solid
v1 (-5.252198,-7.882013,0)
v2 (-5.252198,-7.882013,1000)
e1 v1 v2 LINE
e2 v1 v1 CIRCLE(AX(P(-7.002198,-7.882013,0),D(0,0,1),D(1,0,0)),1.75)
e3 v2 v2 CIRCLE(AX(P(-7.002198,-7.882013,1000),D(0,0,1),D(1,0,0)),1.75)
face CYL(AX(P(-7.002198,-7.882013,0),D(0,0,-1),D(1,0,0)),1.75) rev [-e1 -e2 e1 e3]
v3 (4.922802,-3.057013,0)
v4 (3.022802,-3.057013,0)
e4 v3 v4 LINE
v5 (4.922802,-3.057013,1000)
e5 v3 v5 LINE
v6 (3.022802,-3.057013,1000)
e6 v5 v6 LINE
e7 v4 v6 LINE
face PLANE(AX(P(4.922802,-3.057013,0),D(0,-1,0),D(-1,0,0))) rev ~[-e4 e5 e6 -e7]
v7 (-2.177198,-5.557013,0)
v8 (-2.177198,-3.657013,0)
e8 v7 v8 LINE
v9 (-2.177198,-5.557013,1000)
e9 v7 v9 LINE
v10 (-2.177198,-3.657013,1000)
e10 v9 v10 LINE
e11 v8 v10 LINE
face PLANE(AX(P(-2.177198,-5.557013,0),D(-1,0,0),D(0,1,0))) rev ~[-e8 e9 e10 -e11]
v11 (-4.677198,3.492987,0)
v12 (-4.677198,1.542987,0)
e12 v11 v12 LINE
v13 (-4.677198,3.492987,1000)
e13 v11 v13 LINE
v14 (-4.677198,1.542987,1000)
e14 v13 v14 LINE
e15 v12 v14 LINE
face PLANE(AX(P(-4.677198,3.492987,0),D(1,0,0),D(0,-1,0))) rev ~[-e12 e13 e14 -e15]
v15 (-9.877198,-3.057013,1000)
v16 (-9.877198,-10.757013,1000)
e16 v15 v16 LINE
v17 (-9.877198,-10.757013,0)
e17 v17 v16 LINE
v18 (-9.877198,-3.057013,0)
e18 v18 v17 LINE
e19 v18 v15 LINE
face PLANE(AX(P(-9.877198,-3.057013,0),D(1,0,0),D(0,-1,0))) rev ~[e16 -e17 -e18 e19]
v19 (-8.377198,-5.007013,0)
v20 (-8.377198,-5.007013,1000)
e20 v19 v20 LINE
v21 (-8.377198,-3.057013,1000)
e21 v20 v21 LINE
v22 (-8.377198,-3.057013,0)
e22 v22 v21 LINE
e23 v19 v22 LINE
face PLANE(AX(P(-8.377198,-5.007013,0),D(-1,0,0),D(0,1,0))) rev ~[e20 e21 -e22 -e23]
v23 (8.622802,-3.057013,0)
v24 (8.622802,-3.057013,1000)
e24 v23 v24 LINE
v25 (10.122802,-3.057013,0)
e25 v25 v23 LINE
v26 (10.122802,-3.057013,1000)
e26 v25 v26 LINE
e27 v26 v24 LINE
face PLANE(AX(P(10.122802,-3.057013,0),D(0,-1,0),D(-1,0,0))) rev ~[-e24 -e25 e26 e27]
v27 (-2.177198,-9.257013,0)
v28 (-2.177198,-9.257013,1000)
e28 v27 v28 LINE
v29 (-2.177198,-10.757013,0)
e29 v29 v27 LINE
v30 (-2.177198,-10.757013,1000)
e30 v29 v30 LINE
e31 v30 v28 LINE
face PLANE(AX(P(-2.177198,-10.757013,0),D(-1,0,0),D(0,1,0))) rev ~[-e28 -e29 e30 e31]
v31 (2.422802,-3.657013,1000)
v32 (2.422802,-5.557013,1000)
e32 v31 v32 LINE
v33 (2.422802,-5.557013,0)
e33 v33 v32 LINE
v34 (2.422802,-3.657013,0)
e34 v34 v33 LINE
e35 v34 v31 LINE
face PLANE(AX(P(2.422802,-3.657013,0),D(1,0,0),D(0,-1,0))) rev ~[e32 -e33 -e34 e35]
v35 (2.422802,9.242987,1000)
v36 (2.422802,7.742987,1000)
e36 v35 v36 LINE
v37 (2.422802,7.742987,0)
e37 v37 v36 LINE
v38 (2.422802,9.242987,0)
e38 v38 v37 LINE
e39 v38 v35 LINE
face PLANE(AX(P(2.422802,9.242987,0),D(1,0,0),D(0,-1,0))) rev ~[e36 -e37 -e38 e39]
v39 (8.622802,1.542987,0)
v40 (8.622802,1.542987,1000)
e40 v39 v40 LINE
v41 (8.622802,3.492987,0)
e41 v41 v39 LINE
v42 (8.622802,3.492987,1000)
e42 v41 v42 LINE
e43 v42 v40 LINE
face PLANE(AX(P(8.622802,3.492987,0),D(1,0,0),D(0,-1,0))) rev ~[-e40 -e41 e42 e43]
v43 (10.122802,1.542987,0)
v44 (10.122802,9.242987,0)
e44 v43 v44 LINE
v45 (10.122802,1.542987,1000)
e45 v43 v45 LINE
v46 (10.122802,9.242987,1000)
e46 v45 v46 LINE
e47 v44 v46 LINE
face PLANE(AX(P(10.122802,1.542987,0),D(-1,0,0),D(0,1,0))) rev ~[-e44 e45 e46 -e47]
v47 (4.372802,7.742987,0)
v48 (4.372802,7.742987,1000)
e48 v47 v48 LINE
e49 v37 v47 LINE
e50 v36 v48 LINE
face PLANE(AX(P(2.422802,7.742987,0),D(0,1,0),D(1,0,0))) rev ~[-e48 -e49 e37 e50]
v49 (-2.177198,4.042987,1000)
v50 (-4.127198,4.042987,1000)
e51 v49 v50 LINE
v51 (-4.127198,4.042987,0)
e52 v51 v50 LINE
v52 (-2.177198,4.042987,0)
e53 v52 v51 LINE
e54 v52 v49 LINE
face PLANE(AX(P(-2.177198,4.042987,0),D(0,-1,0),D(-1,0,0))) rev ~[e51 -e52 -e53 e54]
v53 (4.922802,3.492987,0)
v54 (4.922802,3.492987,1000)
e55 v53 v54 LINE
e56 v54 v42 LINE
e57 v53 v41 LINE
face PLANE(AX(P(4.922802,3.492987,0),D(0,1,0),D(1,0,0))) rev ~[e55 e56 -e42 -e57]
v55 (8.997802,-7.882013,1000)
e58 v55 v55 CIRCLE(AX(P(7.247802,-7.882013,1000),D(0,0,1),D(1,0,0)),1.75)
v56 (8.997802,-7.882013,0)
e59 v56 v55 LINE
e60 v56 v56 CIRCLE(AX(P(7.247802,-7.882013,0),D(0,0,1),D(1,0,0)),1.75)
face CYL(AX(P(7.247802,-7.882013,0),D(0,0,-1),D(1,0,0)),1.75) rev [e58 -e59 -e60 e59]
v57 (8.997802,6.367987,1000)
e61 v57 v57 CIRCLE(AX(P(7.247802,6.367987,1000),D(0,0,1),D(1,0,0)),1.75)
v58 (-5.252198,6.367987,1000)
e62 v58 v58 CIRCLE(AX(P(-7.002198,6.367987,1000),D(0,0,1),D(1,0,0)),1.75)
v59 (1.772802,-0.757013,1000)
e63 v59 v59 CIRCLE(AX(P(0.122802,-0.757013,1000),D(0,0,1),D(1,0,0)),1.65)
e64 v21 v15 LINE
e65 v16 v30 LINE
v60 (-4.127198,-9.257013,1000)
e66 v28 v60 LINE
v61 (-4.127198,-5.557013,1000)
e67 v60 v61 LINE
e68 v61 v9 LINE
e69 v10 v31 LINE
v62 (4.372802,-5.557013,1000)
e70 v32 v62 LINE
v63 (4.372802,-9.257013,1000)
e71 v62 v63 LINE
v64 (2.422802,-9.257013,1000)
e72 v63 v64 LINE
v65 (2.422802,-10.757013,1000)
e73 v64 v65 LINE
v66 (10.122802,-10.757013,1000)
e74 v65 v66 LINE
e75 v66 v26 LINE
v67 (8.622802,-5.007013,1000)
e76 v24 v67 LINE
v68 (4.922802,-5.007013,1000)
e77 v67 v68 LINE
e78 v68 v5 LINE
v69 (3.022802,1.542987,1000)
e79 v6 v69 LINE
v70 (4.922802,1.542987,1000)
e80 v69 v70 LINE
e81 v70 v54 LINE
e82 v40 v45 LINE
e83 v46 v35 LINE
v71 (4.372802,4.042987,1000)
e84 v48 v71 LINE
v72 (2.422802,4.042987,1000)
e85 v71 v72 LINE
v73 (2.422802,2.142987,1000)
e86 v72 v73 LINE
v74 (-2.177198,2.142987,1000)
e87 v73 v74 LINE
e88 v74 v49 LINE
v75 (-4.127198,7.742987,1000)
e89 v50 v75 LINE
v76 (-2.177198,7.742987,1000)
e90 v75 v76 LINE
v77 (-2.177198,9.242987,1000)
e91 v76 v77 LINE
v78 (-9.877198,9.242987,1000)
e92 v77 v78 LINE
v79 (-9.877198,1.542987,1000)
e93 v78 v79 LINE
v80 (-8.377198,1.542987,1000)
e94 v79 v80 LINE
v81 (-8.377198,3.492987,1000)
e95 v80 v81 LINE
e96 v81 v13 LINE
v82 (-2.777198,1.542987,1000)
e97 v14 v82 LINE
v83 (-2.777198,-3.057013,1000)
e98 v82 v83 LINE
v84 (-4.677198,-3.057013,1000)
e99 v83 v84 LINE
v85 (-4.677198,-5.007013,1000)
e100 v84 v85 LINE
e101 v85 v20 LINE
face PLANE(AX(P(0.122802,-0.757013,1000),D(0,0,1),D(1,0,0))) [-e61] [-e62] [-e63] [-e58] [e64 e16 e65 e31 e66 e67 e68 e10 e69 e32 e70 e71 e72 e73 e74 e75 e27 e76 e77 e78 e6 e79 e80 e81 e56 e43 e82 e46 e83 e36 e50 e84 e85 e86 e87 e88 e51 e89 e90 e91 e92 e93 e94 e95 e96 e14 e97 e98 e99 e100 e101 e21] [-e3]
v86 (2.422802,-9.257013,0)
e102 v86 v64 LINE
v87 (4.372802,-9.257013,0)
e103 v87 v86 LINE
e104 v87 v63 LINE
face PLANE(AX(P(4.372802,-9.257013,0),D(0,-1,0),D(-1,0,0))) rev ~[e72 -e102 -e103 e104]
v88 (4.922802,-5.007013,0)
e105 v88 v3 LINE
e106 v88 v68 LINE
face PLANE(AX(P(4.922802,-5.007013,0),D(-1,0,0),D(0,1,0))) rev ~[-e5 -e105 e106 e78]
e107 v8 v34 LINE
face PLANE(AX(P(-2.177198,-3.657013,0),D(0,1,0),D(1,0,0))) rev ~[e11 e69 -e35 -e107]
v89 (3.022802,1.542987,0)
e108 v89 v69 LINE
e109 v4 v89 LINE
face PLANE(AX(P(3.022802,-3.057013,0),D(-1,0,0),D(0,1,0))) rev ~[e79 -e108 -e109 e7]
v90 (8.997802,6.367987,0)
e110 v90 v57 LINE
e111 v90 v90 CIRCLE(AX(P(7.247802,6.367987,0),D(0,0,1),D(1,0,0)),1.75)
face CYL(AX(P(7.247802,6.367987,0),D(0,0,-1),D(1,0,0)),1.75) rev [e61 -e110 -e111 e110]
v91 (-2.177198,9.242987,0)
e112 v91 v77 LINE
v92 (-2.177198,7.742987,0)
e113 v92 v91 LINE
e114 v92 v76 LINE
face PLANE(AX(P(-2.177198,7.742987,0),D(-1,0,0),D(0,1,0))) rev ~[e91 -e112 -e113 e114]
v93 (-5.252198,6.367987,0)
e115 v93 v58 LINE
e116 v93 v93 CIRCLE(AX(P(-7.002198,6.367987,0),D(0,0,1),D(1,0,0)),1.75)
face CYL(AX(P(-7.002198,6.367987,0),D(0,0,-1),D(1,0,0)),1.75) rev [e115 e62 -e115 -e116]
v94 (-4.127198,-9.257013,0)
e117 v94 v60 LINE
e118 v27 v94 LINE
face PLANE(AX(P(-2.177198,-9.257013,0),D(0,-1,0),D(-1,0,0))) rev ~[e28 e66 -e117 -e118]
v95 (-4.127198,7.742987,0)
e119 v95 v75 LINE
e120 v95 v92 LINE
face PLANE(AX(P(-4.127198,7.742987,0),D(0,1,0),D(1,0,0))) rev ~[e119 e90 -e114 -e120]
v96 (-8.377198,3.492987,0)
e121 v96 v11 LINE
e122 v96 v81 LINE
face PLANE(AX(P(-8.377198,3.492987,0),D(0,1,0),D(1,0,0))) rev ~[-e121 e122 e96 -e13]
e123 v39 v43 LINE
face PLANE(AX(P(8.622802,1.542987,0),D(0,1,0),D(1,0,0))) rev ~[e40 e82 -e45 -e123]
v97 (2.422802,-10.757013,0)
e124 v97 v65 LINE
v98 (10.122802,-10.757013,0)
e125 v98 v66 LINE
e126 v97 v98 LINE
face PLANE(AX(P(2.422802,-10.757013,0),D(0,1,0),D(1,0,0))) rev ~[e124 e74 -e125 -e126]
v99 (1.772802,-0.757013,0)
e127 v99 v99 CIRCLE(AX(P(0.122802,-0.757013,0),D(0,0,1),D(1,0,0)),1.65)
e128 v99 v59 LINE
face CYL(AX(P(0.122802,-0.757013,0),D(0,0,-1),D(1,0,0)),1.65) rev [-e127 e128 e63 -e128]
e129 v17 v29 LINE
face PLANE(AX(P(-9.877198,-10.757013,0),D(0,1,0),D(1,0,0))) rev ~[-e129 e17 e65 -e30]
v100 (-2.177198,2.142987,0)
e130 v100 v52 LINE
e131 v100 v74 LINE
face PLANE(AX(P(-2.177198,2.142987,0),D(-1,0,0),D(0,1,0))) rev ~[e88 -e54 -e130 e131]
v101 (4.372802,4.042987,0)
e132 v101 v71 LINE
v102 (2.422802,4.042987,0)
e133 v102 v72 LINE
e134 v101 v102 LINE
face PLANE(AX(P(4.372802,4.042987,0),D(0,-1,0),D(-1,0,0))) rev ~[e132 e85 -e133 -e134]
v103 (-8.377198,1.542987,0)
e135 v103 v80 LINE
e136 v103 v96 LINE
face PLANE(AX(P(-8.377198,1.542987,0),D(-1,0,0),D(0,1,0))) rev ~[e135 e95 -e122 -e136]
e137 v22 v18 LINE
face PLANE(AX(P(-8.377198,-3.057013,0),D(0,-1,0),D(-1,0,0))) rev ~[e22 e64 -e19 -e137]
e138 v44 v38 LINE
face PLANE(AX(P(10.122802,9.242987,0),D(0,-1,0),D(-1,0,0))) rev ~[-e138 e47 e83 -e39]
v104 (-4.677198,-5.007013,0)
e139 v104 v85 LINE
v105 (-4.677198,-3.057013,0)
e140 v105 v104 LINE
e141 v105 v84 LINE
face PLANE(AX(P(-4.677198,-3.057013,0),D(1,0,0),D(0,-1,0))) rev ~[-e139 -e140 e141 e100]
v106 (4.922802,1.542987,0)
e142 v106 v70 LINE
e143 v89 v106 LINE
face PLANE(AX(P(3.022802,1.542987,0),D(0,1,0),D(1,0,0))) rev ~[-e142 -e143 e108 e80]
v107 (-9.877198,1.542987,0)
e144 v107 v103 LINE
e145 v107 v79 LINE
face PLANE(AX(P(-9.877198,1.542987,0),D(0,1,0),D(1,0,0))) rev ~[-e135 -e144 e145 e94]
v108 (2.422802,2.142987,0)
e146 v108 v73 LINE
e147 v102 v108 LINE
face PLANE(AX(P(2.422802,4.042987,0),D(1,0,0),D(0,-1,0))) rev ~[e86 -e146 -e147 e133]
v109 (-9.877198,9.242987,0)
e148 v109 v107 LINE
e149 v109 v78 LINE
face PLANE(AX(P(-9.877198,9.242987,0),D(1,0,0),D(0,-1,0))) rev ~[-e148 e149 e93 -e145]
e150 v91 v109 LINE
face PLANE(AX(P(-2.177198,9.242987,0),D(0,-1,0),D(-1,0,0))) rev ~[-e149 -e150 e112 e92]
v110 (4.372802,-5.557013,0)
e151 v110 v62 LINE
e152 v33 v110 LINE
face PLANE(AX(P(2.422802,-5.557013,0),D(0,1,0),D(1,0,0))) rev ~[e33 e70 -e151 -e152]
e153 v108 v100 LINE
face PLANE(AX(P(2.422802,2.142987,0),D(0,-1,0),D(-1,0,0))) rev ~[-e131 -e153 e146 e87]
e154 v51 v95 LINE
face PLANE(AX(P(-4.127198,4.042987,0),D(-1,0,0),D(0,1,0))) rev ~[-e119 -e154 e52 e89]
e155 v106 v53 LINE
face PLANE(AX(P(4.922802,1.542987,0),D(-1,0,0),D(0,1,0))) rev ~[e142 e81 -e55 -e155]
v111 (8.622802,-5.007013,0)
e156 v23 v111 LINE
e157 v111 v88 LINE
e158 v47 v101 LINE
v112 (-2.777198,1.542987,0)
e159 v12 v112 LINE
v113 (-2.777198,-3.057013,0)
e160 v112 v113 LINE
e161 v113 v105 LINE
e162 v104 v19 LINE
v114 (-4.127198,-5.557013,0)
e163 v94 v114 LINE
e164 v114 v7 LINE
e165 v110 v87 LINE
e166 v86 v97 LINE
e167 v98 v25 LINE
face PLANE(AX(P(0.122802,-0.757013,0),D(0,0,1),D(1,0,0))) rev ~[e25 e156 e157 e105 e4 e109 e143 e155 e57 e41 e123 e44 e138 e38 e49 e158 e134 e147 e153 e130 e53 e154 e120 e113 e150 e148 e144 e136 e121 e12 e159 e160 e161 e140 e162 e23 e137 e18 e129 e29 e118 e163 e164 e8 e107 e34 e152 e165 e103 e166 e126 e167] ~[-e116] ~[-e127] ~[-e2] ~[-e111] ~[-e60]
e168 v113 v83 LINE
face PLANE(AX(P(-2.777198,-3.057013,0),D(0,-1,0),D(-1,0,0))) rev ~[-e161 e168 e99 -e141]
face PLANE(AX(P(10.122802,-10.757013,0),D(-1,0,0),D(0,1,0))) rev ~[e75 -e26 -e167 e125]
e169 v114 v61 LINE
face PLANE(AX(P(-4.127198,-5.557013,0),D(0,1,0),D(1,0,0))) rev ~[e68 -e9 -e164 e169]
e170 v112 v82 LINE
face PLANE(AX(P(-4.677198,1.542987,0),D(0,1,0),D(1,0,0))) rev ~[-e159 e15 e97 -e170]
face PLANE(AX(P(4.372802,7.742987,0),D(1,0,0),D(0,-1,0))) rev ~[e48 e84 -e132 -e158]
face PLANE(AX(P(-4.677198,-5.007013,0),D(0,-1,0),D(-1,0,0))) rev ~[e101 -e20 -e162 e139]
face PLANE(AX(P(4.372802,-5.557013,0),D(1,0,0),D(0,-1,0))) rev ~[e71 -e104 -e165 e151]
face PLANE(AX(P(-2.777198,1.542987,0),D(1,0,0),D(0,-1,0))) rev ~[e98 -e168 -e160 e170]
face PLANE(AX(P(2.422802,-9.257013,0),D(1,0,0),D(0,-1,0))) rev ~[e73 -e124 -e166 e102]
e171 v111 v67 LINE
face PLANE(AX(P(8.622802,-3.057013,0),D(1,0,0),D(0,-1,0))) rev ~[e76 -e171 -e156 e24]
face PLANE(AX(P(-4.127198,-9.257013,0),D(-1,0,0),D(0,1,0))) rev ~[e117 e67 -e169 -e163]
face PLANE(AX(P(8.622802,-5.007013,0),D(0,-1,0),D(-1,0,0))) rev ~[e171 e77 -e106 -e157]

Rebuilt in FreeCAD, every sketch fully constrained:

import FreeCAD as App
import Part
import Sketcher
from FreeCAD import Vector
Q = App.Units.Quantity


def add_polygon(sketch, points):
    """Adds a closed chain of lines whose ends are joined by coincident constraints."""
    first, n = sketch.GeometryCount, len(points)
    for a, b in zip(points, points[1:] + points[:1]):
        sketch.addGeometry(Part.LineSegment(App.Vector(*a, 0), App.Vector(*b, 0)), False)
    for i in range(n):
        sketch.addConstraint(Sketcher.Constraint("Coincident", first + i, 2, first + (i + 1) % n, 1))

doc = App.newDocument("Part")
body = doc.addObject("PartDesign::Body", "Body")

sketch1 = body.newObject("Sketcher::SketchObject", "Sketch")
sketch1.AttachmentSupport = (doc.getObject("XY_Plane"), [""])
sketch1.MapMode = "FlatFace"
add_polygon(sketch1, [(-2.177198, 9.242987), (-9.877198, 9.242987), (-9.877198, 1.542987), (-8.377198, 1.542987), (-8.377198, 3.492987), (-4.677198, 3.492987), (-4.677198, 1.542987), (-2.777198, 1.542987), (-2.777198, -3.057013), (-4.677198, -3.057013), (-4.677198, -5.007013), (-8.377198, -5.007013), (-8.377198, -3.057013), (-9.877198, -3.057013), (-9.877198, -10.757013), (-2.177198, -10.757013), (-2.177198, -9.257013), (-4.127198, -9.257013), (-4.127198, -5.557013), (-2.177198, -5.557013), (-2.177198, -3.657013), (2.422802, -3.657013), (2.422802, -5.557013), (4.372802, -5.557013), (4.372802, -9.257013), (2.422802, -9.257013), (2.422802, -10.757013), (10.122802, -10.757013), (10.122802, -3.057013), (8.622802, -3.057013), (8.622802, -5.007013), (4.922802, -5.007013), (4.922802, -3.057013), (3.022802, -3.057013), (3.022802, 1.542987), (4.922802, 1.542987), (4.922802, 3.492987), (8.622802, 3.492987), (8.622802, 1.542987), (10.122802, 1.542987), (10.122802, 9.242987), (2.422802, 9.242987), (2.422802, 7.742987), (4.372802, 7.742987), (4.372802, 4.042987), (2.422802, 4.042987), (2.422802, 2.142987), (-2.177198, 2.142987), (-2.177198, 4.042987), (-4.127198, 4.042987), (-4.127198, 7.742987), (-2.177198, 7.742987)])
sketch1.addGeometry(Part.Circle(Vector(-7.002198, -7.882013, 0), Vector(0, 0, 1), 1.75), False)
sketch1.addGeometry(Part.Circle(Vector(7.247802, -7.882013, 0), Vector(0, 0, 1), 1.75), False)
sketch1.addGeometry(Part.Circle(Vector(-7.002198, 6.367987, 0), Vector(0, 0, 1), 1.75), False)
sketch1.addGeometry(Part.Circle(Vector(0.122802, -0.757013, 0), Vector(0, 0, 1), 1.65), False)
sketch1.addGeometry(Part.Circle(Vector(7.247802, 6.367987, 0), Vector(0, 0, 1), 1.75), False)
sketch1.addConstraint(Sketcher.Constraint("Horizontal", 0))
sketch1.addConstraint(Sketcher.Constraint("Vertical", 1))
sketch1.addConstraint(Sketcher.Constraint("Horizontal", 2))
sketch1.addConstraint(Sketcher.Constraint("Vertical", 3))
sketch1.addConstraint(Sketcher.Constraint("Horizontal", 4))
sketch1.addConstraint(Sketcher.Constraint("Vertical", 5))
sketch1.addConstraint(Sketcher.Constraint("Horizontal", 6))
sketch1.addConstraint(Sketcher.Constraint("Vertical", 7))
sketch1.addConstraint(Sketcher.Constraint("Horizontal", 8))
sketch1.addConstraint(Sketcher.Constraint("Vertical", 9))
sketch1.addConstraint(Sketcher.Constraint("Horizontal", 10))
sketch1.addConstraint(Sketcher.Constraint("Vertical", 11))
sketch1.addConstraint(Sketcher.Constraint("Horizontal", 12))
sketch1.addConstraint(Sketcher.Constraint("Vertical", 13))
sketch1.addConstraint(Sketcher.Constraint("Horizontal", 14))
sketch1.addConstraint(Sketcher.Constraint("Vertical", 15))
sketch1.addConstraint(Sketcher.Constraint("Horizontal", 16))
sketch1.addConstraint(Sketcher.Constraint("Vertical", 17))
sketch1.addConstraint(Sketcher.Constraint("Horizontal", 18))
sketch1.addConstraint(Sketcher.Constraint("Vertical", 19))
sketch1.addConstraint(Sketcher.Constraint("Horizontal", 20))
sketch1.addConstraint(Sketcher.Constraint("Vertical", 21))
sketch1.addConstraint(Sketcher.Constraint("Horizontal", 22))
sketch1.addConstraint(Sketcher.Constraint("Vertical", 23))
sketch1.addConstraint(Sketcher.Constraint("Horizontal", 24))
sketch1.addConstraint(Sketcher.Constraint("Vertical", 25))
sketch1.addConstraint(Sketcher.Constraint("Horizontal", 26))
sketch1.addConstraint(Sketcher.Constraint("Vertical", 27))
sketch1.addConstraint(Sketcher.Constraint("Horizontal", 28))
sketch1.addConstraint(Sketcher.Constraint("Vertical", 29))
sketch1.addConstraint(Sketcher.Constraint("Horizontal", 30))
sketch1.addConstraint(Sketcher.Constraint("Vertical", 31))
sketch1.addConstraint(Sketcher.Constraint("Horizontal", 32))
sketch1.addConstraint(Sketcher.Constraint("Vertical", 33))
sketch1.addConstraint(Sketcher.Constraint("Horizontal", 34))
sketch1.addConstraint(Sketcher.Constraint("Vertical", 35))
sketch1.addConstraint(Sketcher.Constraint("Horizontal", 36))
sketch1.addConstraint(Sketcher.Constraint("Vertical", 37))
sketch1.addConstraint(Sketcher.Constraint("Horizontal", 38))
sketch1.addConstraint(Sketcher.Constraint("Vertical", 39))
sketch1.addConstraint(Sketcher.Constraint("Horizontal", 40))
sketch1.addConstraint(Sketcher.Constraint("Vertical", 41))
sketch1.addConstraint(Sketcher.Constraint("Horizontal", 42))
sketch1.addConstraint(Sketcher.Constraint("Vertical", 43))
sketch1.addConstraint(Sketcher.Constraint("Horizontal", 44))
sketch1.addConstraint(Sketcher.Constraint("Vertical", 45))
sketch1.addConstraint(Sketcher.Constraint("Horizontal", 46))
sketch1.addConstraint(Sketcher.Constraint("Vertical", 47))
sketch1.addConstraint(Sketcher.Constraint("Horizontal", 48))
sketch1.addConstraint(Sketcher.Constraint("Vertical", 49))
sketch1.addConstraint(Sketcher.Constraint("Horizontal", 50))
sketch1.addConstraint(Sketcher.Constraint("Vertical", 51))
sketch1.addConstraint(Sketcher.Constraint("Equal", 52, 53))
sketch1.addConstraint(Sketcher.Constraint("Equal", 53, 54))
sketch1.addConstraint(Sketcher.Constraint("Equal", 54, 56))
sketch1.addConstraint(Sketcher.Constraint("Horizontal", 52, 3, 53, 3))
sketch1.addConstraint(Sketcher.Constraint("Horizontal", 54, 3, 56, 3))
sketch1.addConstraint(Sketcher.Constraint("Horizontal", 2, 2, 5, 2))
sketch1.addConstraint(Sketcher.Constraint("Horizontal", 8, 2, 11, 2))
sketch1.addConstraint(Sketcher.Constraint("Horizontal", 18, 2, 21, 2))
sketch1.addConstraint(Sketcher.Constraint("Horizontal", 16, 2, 23, 2))
sketch1.addConstraint(Sketcher.Constraint("Horizontal", 14, 2, 25, 2))
sketch1.addConstraint(Sketcher.Constraint("Horizontal", 12, 2, 27, 2))
sketch1.addConstraint(Sketcher.Constraint("Horizontal", 10, 2, 29, 2))
sketch1.addConstraint(Sketcher.Constraint("Horizontal", 28, 2, 31, 2))
sketch1.addConstraint(Sketcher.Constraint("Horizontal", 6, 2, 33, 2))
sketch1.addConstraint(Sketcher.Constraint("Horizontal", 4, 2, 35, 2))
sketch1.addConstraint(Sketcher.Constraint("Horizontal", 34, 2, 37, 2))
sketch1.addConstraint(Sketcher.Constraint("Horizontal", 0, 2, 39, 2))
sketch1.addConstraint(Sketcher.Constraint("Horizontal", 44, 2, 47, 2))
sketch1.addConstraint(Sketcher.Constraint("Horizontal", 42, 2, 49, 2))
sketch1.addConstraint(Sketcher.Constraint("Vertical", 52, 3, 54, 3))
sketch1.addConstraint(Sketcher.Constraint("Vertical", 53, 3, 56, 3))
sketch1.addConstraint(Sketcher.Constraint("Vertical", 5, 2, 8, 2))
sketch1.addConstraint(Sketcher.Constraint("Vertical", 3, 2, 10, 2))
sketch1.addConstraint(Sketcher.Constraint("Vertical", 1, 2, 12, 2))
sketch1.addConstraint(Sketcher.Constraint("Vertical", 15, 2, 18, 2))
sketch1.addConstraint(Sketcher.Constraint("Vertical", 21, 2, 24, 2))
sketch1.addConstraint(Sketcher.Constraint("Vertical", 31, 2, 34, 2))
sketch1.addConstraint(Sketcher.Constraint("Vertical", 29, 2, 36, 2))
sketch1.addConstraint(Sketcher.Constraint("Vertical", 27, 2, 38, 2))
sketch1.addConstraint(Sketcher.Constraint("Vertical", 25, 2, 40, 2))
sketch1.addConstraint(Sketcher.Constraint("Vertical", 23, 2, 42, 2))
sketch1.addConstraint(Sketcher.Constraint("Vertical", 41, 2, 44, 2))
sketch1.addConstraint(Sketcher.Constraint("Vertical", 19, 2, 46, 2))
sketch1.addConstraint(Sketcher.Constraint("Vertical", 17, 2, 48, 2))
sketch1.addConstraint(Sketcher.Constraint("Vertical", 47, 2, 50, 2))
sketch1.addConstraint(Sketcher.Constraint("Equal", 18, 22))
sketch1.addConstraint(Sketcher.Constraint("Equal", 14, 26))
sketch1.addConstraint(Sketcher.Constraint("Equal", 12, 28))
sketch1.addConstraint(Sketcher.Constraint("Equal", 10, 30))
sketch1.addConstraint(Sketcher.Constraint("Equal", 8, 32))
sketch1.addConstraint(Sketcher.Constraint("Equal", 40, 1))
sketch1.addConstraint(Sketcher.Constraint("Equal", 50, 3))
sketch1.addConstraint(Sketcher.Constraint("Equal", 46, 7))
sketch1.addConstraint(Sketcher.Constraint("Equal", 5, 9))
sketch1.addConstraint(Sketcher.Constraint("Equal", 1, 13))
sketch1.addConstraint(Sketcher.Constraint("Equal", 38, 15))
sketch1.addConstraint(Sketcher.Constraint("Equal", 36, 17))
sketch1.addConstraint(Sketcher.Constraint("Equal", 34, 19))
sketch1.addConstraint(Sketcher.Constraint("Equal", 25, 41))
sketch1.addConstraint(Sketcher.Constraint("Equal", 23, 43))
sketch1.addConstraint(Sketcher.Constraint("Equal", 21, 45))
sketch1.addConstraint(Sketcher.Constraint("Diameter", 52, Q("3.5 mm")))
sketch1.addConstraint(Sketcher.Constraint("Diameter", 55, Q("3.3 mm")))
sketch1.addConstraint(Sketcher.Constraint("DistanceX", 0, 2, 0, 1, Q("7.7 mm")))
sketch1.addConstraint(Sketcher.Constraint("DistanceX", 2, 1, 2, 2, Q("1.5 mm")))
sketch1.addConstraint(Sketcher.Constraint("DistanceX", 4, 1, 4, 2, Q("3.7 mm")))
sketch1.addConstraint(Sketcher.Constraint("DistanceX", 6, 1, 6, 2, Q("1.9 mm")))
sketch1.addConstraint(Sketcher.Constraint("DistanceX", 20, 1, 20, 2, Q("4.6 mm")))
sketch1.addConstraint(Sketcher.Constraint("DistanceX", 0, 2, 55, 3, Q("10 mm")))
sketch1.addConstraint(Sketcher.Constraint("DistanceY", 55, 3, 0, 2, Q("10 mm")))
sketch1.addConstraint(Sketcher.Constraint("DistanceX", 16, 2, 16, 1, Q("1.95 mm")))
sketch1.addConstraint(Sketcher.Constraint("DistanceX", 52, 3, 53, 3, Q("14.25 mm")))
sketch1.addConstraint(Sketcher.Constraint("DistanceY", 52, 3, 54, 3, Q("14.25 mm")))
sketch1.addConstraint(Sketcher.Constraint("DistanceX", 52, 3, 55, 3, Q("7.125 mm")))
sketch1.addConstraint(Sketcher.Constraint("DistanceY", 52, 3, 55, 3, Q("7.125 mm")))
sketch1.addConstraint(Sketcher.Constraint("DistanceX", 52, 3, -1, 1, Q("7.002198 mm")))
sketch1.addConstraint(Sketcher.Constraint("DistanceY", 52, 3, -1, 1, Q("7.882013 mm")))
pad1 = body.newObject("PartDesign::Pad", "Pad")
pad1.Profile = sketch1
pad1.Length = 1000

doc.recompute()
